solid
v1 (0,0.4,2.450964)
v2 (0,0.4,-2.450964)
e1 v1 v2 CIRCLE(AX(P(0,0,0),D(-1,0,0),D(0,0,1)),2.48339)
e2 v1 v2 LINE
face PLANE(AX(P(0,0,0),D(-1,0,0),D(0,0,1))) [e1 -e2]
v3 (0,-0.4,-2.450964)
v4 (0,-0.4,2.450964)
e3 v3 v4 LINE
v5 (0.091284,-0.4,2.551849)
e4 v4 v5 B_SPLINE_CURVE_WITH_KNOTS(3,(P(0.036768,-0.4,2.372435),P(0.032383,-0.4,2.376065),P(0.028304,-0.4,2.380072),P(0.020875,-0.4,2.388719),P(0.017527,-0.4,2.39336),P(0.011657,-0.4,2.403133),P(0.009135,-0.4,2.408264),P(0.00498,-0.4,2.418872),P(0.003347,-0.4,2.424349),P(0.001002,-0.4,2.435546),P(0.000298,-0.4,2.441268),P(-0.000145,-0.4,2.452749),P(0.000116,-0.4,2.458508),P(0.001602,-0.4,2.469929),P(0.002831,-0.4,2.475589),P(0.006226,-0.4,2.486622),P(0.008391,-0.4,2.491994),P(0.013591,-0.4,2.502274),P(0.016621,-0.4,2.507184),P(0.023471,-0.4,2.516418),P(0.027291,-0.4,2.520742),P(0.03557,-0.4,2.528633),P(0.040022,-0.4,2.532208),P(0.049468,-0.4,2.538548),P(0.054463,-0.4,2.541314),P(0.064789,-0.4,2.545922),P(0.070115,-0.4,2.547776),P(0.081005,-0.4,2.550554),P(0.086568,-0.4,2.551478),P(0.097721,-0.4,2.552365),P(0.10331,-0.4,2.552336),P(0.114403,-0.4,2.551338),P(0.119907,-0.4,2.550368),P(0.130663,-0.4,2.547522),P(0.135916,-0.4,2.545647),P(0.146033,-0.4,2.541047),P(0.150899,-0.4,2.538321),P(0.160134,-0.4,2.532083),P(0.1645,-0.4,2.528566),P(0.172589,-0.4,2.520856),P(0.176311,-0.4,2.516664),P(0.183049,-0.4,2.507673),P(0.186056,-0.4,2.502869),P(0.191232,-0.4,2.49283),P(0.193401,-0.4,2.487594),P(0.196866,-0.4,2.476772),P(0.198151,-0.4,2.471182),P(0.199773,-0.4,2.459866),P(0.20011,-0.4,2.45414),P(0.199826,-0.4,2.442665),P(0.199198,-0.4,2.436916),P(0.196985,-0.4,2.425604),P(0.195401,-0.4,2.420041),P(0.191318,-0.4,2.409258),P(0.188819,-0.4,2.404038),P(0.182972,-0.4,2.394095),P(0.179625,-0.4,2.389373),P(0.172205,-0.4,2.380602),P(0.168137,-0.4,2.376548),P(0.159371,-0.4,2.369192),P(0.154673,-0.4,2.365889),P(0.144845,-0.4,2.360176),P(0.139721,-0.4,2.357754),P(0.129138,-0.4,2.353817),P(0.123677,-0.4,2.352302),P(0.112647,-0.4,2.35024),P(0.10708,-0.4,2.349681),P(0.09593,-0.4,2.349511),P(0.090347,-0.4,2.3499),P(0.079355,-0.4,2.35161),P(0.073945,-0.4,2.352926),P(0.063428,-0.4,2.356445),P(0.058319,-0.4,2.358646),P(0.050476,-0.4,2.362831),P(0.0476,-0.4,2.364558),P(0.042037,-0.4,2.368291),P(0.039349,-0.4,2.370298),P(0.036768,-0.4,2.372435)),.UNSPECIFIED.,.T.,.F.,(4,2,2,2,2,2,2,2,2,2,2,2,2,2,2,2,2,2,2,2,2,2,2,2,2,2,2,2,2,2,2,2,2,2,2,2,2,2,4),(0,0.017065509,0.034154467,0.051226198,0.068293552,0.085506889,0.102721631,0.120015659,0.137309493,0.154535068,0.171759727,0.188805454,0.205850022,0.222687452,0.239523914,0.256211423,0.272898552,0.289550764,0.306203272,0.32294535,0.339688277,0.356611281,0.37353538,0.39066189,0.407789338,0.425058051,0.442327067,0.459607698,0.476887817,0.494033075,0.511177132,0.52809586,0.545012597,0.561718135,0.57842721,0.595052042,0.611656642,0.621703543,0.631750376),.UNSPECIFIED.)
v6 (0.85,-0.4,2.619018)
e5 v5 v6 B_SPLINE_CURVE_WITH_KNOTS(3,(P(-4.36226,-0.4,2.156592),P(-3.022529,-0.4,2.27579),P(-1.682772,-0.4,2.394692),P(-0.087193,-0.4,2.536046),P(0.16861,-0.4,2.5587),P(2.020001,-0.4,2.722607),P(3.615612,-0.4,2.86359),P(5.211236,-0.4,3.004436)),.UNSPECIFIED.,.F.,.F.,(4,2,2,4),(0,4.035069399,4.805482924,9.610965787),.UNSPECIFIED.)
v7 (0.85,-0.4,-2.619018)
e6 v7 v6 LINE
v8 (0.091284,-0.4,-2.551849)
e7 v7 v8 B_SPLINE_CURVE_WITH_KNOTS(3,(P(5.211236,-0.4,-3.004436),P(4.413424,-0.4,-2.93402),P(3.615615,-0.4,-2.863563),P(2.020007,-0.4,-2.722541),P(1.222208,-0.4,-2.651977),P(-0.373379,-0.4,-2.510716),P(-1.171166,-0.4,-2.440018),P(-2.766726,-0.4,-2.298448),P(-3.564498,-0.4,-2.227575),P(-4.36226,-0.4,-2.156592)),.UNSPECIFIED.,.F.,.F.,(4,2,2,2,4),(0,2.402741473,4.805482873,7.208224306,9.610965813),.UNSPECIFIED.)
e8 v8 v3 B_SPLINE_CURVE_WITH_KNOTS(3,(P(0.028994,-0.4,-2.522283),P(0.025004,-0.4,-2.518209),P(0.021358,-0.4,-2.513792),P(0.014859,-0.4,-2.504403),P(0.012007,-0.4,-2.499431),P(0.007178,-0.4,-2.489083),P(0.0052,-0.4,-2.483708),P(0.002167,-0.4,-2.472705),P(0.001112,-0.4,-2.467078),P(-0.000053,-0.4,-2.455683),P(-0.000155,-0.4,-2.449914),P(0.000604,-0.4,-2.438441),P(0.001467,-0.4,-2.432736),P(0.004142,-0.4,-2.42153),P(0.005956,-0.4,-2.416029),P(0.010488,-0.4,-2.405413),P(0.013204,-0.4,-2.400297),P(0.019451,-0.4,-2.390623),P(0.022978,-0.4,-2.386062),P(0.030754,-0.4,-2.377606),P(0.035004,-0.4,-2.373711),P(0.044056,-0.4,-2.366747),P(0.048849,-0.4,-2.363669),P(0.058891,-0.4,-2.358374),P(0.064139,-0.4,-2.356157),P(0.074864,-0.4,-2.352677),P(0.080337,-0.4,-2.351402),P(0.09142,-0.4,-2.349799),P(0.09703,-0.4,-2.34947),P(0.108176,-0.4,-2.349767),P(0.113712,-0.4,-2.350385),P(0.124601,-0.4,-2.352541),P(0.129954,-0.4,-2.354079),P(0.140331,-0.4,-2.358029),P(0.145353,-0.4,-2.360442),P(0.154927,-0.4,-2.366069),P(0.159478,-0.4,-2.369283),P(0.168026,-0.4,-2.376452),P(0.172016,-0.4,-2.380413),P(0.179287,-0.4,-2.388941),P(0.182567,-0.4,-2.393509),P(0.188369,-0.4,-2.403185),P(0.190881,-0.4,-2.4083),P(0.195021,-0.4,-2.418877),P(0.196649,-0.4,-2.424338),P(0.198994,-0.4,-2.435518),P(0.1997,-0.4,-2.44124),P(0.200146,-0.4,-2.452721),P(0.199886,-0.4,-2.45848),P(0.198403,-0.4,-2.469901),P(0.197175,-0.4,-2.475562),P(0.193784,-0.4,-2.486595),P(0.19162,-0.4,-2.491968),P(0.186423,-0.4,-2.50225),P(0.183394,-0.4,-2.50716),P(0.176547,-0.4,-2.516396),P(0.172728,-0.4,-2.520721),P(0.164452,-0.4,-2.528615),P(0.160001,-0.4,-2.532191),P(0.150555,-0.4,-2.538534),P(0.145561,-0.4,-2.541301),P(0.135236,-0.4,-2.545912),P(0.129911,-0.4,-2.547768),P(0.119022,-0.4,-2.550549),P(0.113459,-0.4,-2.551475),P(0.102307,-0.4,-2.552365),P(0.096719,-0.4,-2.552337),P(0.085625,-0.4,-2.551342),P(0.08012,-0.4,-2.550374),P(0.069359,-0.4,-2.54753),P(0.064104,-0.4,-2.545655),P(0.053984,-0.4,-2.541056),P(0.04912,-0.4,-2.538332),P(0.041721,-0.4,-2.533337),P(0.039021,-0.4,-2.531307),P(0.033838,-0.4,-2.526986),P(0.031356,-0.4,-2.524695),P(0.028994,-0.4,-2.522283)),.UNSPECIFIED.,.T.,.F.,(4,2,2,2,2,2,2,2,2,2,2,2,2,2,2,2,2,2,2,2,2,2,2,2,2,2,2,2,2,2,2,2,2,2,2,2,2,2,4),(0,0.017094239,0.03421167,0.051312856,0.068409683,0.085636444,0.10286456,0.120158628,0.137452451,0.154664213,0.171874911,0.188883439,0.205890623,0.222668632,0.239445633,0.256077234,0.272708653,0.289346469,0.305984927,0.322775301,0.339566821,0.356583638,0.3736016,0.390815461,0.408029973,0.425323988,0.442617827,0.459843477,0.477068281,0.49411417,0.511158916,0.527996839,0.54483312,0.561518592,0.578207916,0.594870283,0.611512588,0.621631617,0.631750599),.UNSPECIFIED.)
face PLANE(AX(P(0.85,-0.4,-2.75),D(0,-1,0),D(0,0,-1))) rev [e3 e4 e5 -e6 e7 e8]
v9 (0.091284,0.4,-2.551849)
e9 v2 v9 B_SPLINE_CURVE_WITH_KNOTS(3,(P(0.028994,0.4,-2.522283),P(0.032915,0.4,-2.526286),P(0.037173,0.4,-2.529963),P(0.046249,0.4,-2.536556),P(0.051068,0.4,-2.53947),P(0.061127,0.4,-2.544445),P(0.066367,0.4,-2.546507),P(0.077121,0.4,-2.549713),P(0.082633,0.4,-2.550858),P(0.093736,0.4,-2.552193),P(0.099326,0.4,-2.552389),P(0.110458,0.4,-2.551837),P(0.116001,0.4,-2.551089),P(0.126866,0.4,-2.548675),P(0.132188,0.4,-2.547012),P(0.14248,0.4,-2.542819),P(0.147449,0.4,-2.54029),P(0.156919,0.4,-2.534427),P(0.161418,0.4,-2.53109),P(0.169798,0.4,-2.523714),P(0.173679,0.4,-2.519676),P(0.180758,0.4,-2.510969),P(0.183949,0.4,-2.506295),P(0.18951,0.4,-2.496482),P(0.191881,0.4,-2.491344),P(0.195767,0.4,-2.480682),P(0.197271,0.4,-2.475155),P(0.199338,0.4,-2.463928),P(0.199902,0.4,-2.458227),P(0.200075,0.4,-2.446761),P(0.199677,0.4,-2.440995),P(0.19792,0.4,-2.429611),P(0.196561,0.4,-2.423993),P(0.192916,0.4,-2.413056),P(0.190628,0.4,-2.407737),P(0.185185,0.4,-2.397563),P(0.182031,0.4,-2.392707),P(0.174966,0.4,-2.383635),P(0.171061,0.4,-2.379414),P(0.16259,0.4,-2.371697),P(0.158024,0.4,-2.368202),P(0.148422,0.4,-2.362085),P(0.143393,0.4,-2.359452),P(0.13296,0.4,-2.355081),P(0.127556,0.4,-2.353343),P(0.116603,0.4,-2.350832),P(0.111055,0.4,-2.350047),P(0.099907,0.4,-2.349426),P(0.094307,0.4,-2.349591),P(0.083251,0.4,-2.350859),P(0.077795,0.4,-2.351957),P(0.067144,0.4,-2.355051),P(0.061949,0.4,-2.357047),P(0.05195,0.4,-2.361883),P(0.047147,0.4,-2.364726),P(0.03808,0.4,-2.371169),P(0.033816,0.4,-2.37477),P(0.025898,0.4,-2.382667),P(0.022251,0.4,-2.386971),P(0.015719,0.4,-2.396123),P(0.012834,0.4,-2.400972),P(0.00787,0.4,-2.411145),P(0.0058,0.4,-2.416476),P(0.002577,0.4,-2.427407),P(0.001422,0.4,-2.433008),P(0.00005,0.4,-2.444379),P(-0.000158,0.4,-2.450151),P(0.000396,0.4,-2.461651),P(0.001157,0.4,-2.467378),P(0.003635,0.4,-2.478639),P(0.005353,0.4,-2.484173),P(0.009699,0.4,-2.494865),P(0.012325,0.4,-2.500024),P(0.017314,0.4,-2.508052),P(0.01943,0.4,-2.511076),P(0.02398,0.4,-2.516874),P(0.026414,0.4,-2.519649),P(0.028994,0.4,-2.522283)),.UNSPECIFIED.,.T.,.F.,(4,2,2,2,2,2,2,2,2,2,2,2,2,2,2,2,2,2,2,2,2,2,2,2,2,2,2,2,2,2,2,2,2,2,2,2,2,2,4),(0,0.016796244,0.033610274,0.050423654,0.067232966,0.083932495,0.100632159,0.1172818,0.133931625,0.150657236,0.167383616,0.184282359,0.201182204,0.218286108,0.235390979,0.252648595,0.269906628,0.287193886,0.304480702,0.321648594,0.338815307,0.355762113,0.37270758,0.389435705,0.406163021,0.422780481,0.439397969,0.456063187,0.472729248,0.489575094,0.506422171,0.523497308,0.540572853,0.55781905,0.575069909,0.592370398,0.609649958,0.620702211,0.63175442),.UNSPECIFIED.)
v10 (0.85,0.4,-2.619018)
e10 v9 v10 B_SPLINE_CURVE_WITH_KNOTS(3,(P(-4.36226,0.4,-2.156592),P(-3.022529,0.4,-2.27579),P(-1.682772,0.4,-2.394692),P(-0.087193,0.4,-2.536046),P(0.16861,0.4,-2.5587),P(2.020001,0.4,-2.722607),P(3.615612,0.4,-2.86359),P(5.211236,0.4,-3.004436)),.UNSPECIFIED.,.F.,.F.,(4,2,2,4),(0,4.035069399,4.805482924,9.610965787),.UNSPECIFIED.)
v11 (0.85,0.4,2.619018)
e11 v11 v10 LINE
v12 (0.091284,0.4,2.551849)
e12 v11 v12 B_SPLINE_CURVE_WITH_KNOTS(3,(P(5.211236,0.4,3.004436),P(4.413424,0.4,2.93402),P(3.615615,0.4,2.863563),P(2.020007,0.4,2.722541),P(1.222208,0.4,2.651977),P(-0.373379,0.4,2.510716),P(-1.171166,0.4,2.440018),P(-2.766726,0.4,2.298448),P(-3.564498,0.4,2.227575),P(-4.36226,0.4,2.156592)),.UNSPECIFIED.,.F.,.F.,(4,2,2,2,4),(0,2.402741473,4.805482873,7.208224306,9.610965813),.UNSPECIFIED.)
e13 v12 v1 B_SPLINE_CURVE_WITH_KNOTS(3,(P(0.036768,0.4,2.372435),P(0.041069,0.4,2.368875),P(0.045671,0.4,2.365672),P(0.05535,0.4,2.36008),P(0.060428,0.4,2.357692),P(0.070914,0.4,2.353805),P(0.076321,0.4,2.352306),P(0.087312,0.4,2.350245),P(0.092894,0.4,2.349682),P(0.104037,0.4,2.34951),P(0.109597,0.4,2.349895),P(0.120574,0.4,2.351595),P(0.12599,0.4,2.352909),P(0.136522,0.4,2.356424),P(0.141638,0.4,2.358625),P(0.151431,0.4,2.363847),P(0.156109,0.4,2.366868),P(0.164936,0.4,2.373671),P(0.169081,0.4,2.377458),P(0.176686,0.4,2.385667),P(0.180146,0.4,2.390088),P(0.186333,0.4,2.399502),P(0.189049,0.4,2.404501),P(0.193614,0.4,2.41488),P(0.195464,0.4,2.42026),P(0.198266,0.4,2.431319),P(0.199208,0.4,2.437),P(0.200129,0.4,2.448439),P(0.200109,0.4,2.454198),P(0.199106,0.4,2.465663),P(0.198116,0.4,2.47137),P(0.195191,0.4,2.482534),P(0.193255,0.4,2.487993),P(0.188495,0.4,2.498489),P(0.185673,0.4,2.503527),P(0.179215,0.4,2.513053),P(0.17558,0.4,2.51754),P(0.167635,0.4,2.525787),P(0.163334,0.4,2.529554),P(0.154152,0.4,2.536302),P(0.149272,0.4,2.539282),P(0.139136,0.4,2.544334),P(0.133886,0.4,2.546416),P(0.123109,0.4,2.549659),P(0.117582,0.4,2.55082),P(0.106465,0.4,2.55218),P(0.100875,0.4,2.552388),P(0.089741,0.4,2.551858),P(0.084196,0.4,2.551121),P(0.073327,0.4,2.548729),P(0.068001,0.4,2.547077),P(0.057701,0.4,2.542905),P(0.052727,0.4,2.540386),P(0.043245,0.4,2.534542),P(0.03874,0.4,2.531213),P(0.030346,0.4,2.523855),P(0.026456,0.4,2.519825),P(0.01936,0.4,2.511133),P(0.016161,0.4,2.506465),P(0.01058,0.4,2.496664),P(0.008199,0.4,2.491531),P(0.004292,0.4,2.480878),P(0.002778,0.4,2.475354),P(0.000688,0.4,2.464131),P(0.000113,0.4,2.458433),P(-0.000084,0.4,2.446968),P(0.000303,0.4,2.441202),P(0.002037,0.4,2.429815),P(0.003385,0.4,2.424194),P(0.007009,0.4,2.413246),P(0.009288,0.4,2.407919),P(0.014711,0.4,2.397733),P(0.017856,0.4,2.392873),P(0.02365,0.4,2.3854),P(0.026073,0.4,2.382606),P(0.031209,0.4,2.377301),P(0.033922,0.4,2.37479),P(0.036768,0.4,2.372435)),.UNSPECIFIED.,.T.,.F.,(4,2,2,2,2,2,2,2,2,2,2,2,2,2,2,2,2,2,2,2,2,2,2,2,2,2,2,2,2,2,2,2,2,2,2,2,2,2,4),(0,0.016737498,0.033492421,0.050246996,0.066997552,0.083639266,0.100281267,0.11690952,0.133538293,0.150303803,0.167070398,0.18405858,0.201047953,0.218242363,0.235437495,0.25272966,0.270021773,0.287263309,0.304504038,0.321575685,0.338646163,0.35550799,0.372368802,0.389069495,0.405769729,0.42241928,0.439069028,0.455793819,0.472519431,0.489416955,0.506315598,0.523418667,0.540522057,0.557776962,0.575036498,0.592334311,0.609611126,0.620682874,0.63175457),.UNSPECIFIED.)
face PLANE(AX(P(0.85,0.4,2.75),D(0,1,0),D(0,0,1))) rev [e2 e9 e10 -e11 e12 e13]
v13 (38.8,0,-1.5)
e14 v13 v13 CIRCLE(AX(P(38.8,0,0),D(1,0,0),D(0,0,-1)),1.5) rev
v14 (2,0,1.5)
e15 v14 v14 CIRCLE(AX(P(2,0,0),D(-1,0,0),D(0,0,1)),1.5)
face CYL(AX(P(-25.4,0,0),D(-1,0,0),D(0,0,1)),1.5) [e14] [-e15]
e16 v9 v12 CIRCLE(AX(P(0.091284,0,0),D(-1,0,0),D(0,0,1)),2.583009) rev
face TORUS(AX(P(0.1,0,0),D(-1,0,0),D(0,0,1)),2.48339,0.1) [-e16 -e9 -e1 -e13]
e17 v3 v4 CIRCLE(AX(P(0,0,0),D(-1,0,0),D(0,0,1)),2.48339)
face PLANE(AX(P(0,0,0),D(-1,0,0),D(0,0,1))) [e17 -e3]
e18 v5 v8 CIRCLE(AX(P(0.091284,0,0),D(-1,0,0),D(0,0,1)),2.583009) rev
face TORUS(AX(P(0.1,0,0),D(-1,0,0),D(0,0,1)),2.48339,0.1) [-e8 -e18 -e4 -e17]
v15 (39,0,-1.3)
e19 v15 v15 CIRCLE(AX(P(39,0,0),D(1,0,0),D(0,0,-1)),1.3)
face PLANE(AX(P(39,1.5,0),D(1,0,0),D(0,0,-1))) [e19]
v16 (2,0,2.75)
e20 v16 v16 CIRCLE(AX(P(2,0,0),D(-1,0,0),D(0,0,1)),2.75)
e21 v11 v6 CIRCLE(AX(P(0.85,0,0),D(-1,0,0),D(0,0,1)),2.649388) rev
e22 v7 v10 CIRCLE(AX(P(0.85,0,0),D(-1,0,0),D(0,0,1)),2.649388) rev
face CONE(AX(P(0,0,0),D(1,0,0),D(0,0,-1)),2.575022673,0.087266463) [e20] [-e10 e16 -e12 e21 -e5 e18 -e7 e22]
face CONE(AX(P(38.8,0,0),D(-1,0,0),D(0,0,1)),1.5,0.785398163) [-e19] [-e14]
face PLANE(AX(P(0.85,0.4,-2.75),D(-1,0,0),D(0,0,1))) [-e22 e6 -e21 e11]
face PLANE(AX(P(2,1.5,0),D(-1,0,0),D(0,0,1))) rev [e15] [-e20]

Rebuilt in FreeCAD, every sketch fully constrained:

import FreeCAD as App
import Part
import Sketcher

V = App.Vector
Q = App.Units.Quantity


def edges_at(feature, points):
    """Names of the edges that pass closest to the given points."""
    edges = feature.Shape.Edges
    near = lambda p: min(range(len(edges)), key=lambda i: edges[i].distToShape(Part.Vertex(*p))[0])
    return sorted({f"Edge{near(p) + 1}" for p in points})

doc = App.newDocument("Part")
body = doc.addObject("PartDesign::Body", "Body")

# Sketch on XY plane
sketch1 = doc.addObject("Sketcher::SketchObject", "Sketch")
body.addObject(sketch1)
sketch1.AttachmentSupport = (doc.XY_Plane, [""])
sketch1.MapMode = "FlatFace"
sketch1.addGeometry(Part.LineSegment(V(2, 1.5, 0), V(2, 2.8, 0)), False)
sketch1.addGeometry(Part.LineSegment(V(2, 2.8, 0), V(0, 2.6, 0)), False)
sketch1.addGeometry(Part.LineSegment(V(0, 2.6, 0), V(0, 0, 0)), False)
sketch1.addGeometry(Part.LineSegment(V(0, 0, 0), V(39, 0, 0)), False)
sketch1.addGeometry(Part.LineSegment(V(39, 0, 0), V(39, 1.5, 0)), False)
sketch1.addGeometry(Part.LineSegment(V(39, 1.5, 0), V(2, 1.5, 0)), False)
sketch1.addConstraint(Sketcher.Constraint("Coincident", 0, 2, 1, 1))
sketch1.addConstraint(Sketcher.Constraint("Coincident", 1, 2, 2, 1))
sketch1.addConstraint(Sketcher.Constraint("Coincident", 2, 2, 3, 1))
sketch1.addConstraint(Sketcher.Constraint("Coincident", 3, 2, 4, 1))
sketch1.addConstraint(Sketcher.Constraint("Coincident", 4, 2, 5, 1))
sketch1.addConstraint(Sketcher.Constraint("Coincident", 5, 2, 0, 1))
sketch1.addConstraint(Sketcher.Constraint("Vertical", 0))
sketch1.addConstraint(Sketcher.Constraint("Vertical", 2))
sketch1.addConstraint(Sketcher.Constraint("Horizontal", 3))
sketch1.addConstraint(Sketcher.Constraint("Vertical", 4))
sketch1.addConstraint(Sketcher.Constraint("Horizontal", 5))
sketch1.addConstraint(Sketcher.Constraint("Coincident", 2, 2, -1, 1))
sketch1.addConstraint(Sketcher.Constraint("DistanceX", 3, 1, 3, 2, Q("39 mm")))
sketch1.addConstraint(Sketcher.Constraint("DistanceX", 5, 2, 5, 1, Q("37 mm")))
sketch1.addConstraint(Sketcher.Constraint("Angle", 1, Q("-175 deg")))
sketch1.addConstraint(Sketcher.Constraint("DistanceY", 4, 1, 4, 2, Q("1.5 mm")))
sketch1.addConstraint(Sketcher.Constraint("DistanceY", 0, 1, 0, 2, Q("1.25 mm")))
revolution = doc.addObject("PartDesign::Revolution", "Revolution")
body.addObject(revolution)
revolution.Profile = sketch1
revolution.ReferenceAxis = (sketch1, ["H_Axis"])
revolution.Angle = 360
doc.recompute()

fillet = doc.addObject("PartDesign::Fillet", "Fillet")
body.addObject(fillet)
fillet.Base = (revolution, edges_at(revolution, [(0, 0, -2.575)]))
fillet.Radius = 0.1

# Sketch on YZ plane
sketch2 = doc.addObject("Sketcher::SketchObject", "Sketch001")
body.addObject(sketch2)
sketch2.AttachmentSupport = (doc.YZ_Plane, [""])
sketch2.MapMode = "FlatFace"
sketch2.addGeometry(Part.LineSegment(V(0.4, 2.8, 0), V(-0.4, 2.8, 0)), False)
sketch2.addGeometry(Part.LineSegment(V(-0.4, 2.8, 0), V(-0.4, -2.8, 0)), False)
sketch2.addGeometry(Part.LineSegment(V(-0.4, -2.8, 0), V(0.4, -2.8, 0)), False)
sketch2.addGeometry(Part.LineSegment(V(0.4, -2.8, 0), V(0.4, 2.8, 0)), False)
sketch2.addConstraint(Sketcher.Constraint("Coincident", 0, 2, 1, 1))
sketch2.addConstraint(Sketcher.Constraint("Coincident", 1, 2, 2, 1))
sketch2.addConstraint(Sketcher.Constraint("Coincident", 2, 2, 3, 1))
sketch2.addConstraint(Sketcher.Constraint("Coincident", 3, 2, 0, 1))
sketch2.addConstraint(Sketcher.Constraint("Horizontal", 0))
sketch2.addConstraint(Sketcher.Constraint("Vertical", 1))
sketch2.addConstraint(Sketcher.Constraint("Horizontal", 2))
sketch2.addConstraint(Sketcher.Constraint("Vertical", 3))
sketch2.addConstraint(Sketcher.Constraint("Symmetric", 0, 2, 2, 2, -1, 1))
sketch2.addConstraint(Sketcher.Constraint("DistanceX", 0, 2, 0, 1, Q("0.8 mm")))
sketch2.addConstraint(Sketcher.Constraint("DistanceY", 1, 2, 1, 1, Q("5.5 mm")))
pocket1 = doc.addObject("PartDesign::Pocket", "Pocket")
body.addObject(pocket1)
pocket1.Profile = sketch2
pocket1.Length = 0.85
pocket1.Reversed = True
doc.recompute()

chamfer = doc.addObject("PartDesign::Chamfer", "Chamfer")
body.addObject(chamfer)
chamfer.Base = (pocket1, edges_at(pocket1, [(39, 0, -1.5)]))
chamfer.Size = 0.2

doc.recompute()
